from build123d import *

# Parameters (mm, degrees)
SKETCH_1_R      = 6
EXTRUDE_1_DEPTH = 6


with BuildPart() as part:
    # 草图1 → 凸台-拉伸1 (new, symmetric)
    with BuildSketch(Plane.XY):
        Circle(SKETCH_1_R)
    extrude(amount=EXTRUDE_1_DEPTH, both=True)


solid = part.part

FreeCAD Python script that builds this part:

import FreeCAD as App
import Part
import Sketcher

doc = App.newDocument("Part")
body = doc.addObject("PartDesign::Body", "Body")

sketch1 = body.newObject("Sketcher::SketchObject", "Sketch")
sketch1.AttachmentSupport = (doc.getObject("XY_Plane"), [""])
sketch1.MapMode = "FlatFace"
sketch1.addGeometry(Part.Circle(App.Vector(0, 0, 0), App.Vector(0, 0, 1), 6), False)
sketch1.addConstraint([
    Sketcher.Constraint("Coincident", 0, 3, -1, 1),
    Sketcher.Constraint("Diameter", 0, 12.0),
])
pad1 = body.newObject("PartDesign::Pad", "Pad")
pad1.Profile = sketch1
pad1.Length = 12
pad1.Midplane = True

doc.recompute()
